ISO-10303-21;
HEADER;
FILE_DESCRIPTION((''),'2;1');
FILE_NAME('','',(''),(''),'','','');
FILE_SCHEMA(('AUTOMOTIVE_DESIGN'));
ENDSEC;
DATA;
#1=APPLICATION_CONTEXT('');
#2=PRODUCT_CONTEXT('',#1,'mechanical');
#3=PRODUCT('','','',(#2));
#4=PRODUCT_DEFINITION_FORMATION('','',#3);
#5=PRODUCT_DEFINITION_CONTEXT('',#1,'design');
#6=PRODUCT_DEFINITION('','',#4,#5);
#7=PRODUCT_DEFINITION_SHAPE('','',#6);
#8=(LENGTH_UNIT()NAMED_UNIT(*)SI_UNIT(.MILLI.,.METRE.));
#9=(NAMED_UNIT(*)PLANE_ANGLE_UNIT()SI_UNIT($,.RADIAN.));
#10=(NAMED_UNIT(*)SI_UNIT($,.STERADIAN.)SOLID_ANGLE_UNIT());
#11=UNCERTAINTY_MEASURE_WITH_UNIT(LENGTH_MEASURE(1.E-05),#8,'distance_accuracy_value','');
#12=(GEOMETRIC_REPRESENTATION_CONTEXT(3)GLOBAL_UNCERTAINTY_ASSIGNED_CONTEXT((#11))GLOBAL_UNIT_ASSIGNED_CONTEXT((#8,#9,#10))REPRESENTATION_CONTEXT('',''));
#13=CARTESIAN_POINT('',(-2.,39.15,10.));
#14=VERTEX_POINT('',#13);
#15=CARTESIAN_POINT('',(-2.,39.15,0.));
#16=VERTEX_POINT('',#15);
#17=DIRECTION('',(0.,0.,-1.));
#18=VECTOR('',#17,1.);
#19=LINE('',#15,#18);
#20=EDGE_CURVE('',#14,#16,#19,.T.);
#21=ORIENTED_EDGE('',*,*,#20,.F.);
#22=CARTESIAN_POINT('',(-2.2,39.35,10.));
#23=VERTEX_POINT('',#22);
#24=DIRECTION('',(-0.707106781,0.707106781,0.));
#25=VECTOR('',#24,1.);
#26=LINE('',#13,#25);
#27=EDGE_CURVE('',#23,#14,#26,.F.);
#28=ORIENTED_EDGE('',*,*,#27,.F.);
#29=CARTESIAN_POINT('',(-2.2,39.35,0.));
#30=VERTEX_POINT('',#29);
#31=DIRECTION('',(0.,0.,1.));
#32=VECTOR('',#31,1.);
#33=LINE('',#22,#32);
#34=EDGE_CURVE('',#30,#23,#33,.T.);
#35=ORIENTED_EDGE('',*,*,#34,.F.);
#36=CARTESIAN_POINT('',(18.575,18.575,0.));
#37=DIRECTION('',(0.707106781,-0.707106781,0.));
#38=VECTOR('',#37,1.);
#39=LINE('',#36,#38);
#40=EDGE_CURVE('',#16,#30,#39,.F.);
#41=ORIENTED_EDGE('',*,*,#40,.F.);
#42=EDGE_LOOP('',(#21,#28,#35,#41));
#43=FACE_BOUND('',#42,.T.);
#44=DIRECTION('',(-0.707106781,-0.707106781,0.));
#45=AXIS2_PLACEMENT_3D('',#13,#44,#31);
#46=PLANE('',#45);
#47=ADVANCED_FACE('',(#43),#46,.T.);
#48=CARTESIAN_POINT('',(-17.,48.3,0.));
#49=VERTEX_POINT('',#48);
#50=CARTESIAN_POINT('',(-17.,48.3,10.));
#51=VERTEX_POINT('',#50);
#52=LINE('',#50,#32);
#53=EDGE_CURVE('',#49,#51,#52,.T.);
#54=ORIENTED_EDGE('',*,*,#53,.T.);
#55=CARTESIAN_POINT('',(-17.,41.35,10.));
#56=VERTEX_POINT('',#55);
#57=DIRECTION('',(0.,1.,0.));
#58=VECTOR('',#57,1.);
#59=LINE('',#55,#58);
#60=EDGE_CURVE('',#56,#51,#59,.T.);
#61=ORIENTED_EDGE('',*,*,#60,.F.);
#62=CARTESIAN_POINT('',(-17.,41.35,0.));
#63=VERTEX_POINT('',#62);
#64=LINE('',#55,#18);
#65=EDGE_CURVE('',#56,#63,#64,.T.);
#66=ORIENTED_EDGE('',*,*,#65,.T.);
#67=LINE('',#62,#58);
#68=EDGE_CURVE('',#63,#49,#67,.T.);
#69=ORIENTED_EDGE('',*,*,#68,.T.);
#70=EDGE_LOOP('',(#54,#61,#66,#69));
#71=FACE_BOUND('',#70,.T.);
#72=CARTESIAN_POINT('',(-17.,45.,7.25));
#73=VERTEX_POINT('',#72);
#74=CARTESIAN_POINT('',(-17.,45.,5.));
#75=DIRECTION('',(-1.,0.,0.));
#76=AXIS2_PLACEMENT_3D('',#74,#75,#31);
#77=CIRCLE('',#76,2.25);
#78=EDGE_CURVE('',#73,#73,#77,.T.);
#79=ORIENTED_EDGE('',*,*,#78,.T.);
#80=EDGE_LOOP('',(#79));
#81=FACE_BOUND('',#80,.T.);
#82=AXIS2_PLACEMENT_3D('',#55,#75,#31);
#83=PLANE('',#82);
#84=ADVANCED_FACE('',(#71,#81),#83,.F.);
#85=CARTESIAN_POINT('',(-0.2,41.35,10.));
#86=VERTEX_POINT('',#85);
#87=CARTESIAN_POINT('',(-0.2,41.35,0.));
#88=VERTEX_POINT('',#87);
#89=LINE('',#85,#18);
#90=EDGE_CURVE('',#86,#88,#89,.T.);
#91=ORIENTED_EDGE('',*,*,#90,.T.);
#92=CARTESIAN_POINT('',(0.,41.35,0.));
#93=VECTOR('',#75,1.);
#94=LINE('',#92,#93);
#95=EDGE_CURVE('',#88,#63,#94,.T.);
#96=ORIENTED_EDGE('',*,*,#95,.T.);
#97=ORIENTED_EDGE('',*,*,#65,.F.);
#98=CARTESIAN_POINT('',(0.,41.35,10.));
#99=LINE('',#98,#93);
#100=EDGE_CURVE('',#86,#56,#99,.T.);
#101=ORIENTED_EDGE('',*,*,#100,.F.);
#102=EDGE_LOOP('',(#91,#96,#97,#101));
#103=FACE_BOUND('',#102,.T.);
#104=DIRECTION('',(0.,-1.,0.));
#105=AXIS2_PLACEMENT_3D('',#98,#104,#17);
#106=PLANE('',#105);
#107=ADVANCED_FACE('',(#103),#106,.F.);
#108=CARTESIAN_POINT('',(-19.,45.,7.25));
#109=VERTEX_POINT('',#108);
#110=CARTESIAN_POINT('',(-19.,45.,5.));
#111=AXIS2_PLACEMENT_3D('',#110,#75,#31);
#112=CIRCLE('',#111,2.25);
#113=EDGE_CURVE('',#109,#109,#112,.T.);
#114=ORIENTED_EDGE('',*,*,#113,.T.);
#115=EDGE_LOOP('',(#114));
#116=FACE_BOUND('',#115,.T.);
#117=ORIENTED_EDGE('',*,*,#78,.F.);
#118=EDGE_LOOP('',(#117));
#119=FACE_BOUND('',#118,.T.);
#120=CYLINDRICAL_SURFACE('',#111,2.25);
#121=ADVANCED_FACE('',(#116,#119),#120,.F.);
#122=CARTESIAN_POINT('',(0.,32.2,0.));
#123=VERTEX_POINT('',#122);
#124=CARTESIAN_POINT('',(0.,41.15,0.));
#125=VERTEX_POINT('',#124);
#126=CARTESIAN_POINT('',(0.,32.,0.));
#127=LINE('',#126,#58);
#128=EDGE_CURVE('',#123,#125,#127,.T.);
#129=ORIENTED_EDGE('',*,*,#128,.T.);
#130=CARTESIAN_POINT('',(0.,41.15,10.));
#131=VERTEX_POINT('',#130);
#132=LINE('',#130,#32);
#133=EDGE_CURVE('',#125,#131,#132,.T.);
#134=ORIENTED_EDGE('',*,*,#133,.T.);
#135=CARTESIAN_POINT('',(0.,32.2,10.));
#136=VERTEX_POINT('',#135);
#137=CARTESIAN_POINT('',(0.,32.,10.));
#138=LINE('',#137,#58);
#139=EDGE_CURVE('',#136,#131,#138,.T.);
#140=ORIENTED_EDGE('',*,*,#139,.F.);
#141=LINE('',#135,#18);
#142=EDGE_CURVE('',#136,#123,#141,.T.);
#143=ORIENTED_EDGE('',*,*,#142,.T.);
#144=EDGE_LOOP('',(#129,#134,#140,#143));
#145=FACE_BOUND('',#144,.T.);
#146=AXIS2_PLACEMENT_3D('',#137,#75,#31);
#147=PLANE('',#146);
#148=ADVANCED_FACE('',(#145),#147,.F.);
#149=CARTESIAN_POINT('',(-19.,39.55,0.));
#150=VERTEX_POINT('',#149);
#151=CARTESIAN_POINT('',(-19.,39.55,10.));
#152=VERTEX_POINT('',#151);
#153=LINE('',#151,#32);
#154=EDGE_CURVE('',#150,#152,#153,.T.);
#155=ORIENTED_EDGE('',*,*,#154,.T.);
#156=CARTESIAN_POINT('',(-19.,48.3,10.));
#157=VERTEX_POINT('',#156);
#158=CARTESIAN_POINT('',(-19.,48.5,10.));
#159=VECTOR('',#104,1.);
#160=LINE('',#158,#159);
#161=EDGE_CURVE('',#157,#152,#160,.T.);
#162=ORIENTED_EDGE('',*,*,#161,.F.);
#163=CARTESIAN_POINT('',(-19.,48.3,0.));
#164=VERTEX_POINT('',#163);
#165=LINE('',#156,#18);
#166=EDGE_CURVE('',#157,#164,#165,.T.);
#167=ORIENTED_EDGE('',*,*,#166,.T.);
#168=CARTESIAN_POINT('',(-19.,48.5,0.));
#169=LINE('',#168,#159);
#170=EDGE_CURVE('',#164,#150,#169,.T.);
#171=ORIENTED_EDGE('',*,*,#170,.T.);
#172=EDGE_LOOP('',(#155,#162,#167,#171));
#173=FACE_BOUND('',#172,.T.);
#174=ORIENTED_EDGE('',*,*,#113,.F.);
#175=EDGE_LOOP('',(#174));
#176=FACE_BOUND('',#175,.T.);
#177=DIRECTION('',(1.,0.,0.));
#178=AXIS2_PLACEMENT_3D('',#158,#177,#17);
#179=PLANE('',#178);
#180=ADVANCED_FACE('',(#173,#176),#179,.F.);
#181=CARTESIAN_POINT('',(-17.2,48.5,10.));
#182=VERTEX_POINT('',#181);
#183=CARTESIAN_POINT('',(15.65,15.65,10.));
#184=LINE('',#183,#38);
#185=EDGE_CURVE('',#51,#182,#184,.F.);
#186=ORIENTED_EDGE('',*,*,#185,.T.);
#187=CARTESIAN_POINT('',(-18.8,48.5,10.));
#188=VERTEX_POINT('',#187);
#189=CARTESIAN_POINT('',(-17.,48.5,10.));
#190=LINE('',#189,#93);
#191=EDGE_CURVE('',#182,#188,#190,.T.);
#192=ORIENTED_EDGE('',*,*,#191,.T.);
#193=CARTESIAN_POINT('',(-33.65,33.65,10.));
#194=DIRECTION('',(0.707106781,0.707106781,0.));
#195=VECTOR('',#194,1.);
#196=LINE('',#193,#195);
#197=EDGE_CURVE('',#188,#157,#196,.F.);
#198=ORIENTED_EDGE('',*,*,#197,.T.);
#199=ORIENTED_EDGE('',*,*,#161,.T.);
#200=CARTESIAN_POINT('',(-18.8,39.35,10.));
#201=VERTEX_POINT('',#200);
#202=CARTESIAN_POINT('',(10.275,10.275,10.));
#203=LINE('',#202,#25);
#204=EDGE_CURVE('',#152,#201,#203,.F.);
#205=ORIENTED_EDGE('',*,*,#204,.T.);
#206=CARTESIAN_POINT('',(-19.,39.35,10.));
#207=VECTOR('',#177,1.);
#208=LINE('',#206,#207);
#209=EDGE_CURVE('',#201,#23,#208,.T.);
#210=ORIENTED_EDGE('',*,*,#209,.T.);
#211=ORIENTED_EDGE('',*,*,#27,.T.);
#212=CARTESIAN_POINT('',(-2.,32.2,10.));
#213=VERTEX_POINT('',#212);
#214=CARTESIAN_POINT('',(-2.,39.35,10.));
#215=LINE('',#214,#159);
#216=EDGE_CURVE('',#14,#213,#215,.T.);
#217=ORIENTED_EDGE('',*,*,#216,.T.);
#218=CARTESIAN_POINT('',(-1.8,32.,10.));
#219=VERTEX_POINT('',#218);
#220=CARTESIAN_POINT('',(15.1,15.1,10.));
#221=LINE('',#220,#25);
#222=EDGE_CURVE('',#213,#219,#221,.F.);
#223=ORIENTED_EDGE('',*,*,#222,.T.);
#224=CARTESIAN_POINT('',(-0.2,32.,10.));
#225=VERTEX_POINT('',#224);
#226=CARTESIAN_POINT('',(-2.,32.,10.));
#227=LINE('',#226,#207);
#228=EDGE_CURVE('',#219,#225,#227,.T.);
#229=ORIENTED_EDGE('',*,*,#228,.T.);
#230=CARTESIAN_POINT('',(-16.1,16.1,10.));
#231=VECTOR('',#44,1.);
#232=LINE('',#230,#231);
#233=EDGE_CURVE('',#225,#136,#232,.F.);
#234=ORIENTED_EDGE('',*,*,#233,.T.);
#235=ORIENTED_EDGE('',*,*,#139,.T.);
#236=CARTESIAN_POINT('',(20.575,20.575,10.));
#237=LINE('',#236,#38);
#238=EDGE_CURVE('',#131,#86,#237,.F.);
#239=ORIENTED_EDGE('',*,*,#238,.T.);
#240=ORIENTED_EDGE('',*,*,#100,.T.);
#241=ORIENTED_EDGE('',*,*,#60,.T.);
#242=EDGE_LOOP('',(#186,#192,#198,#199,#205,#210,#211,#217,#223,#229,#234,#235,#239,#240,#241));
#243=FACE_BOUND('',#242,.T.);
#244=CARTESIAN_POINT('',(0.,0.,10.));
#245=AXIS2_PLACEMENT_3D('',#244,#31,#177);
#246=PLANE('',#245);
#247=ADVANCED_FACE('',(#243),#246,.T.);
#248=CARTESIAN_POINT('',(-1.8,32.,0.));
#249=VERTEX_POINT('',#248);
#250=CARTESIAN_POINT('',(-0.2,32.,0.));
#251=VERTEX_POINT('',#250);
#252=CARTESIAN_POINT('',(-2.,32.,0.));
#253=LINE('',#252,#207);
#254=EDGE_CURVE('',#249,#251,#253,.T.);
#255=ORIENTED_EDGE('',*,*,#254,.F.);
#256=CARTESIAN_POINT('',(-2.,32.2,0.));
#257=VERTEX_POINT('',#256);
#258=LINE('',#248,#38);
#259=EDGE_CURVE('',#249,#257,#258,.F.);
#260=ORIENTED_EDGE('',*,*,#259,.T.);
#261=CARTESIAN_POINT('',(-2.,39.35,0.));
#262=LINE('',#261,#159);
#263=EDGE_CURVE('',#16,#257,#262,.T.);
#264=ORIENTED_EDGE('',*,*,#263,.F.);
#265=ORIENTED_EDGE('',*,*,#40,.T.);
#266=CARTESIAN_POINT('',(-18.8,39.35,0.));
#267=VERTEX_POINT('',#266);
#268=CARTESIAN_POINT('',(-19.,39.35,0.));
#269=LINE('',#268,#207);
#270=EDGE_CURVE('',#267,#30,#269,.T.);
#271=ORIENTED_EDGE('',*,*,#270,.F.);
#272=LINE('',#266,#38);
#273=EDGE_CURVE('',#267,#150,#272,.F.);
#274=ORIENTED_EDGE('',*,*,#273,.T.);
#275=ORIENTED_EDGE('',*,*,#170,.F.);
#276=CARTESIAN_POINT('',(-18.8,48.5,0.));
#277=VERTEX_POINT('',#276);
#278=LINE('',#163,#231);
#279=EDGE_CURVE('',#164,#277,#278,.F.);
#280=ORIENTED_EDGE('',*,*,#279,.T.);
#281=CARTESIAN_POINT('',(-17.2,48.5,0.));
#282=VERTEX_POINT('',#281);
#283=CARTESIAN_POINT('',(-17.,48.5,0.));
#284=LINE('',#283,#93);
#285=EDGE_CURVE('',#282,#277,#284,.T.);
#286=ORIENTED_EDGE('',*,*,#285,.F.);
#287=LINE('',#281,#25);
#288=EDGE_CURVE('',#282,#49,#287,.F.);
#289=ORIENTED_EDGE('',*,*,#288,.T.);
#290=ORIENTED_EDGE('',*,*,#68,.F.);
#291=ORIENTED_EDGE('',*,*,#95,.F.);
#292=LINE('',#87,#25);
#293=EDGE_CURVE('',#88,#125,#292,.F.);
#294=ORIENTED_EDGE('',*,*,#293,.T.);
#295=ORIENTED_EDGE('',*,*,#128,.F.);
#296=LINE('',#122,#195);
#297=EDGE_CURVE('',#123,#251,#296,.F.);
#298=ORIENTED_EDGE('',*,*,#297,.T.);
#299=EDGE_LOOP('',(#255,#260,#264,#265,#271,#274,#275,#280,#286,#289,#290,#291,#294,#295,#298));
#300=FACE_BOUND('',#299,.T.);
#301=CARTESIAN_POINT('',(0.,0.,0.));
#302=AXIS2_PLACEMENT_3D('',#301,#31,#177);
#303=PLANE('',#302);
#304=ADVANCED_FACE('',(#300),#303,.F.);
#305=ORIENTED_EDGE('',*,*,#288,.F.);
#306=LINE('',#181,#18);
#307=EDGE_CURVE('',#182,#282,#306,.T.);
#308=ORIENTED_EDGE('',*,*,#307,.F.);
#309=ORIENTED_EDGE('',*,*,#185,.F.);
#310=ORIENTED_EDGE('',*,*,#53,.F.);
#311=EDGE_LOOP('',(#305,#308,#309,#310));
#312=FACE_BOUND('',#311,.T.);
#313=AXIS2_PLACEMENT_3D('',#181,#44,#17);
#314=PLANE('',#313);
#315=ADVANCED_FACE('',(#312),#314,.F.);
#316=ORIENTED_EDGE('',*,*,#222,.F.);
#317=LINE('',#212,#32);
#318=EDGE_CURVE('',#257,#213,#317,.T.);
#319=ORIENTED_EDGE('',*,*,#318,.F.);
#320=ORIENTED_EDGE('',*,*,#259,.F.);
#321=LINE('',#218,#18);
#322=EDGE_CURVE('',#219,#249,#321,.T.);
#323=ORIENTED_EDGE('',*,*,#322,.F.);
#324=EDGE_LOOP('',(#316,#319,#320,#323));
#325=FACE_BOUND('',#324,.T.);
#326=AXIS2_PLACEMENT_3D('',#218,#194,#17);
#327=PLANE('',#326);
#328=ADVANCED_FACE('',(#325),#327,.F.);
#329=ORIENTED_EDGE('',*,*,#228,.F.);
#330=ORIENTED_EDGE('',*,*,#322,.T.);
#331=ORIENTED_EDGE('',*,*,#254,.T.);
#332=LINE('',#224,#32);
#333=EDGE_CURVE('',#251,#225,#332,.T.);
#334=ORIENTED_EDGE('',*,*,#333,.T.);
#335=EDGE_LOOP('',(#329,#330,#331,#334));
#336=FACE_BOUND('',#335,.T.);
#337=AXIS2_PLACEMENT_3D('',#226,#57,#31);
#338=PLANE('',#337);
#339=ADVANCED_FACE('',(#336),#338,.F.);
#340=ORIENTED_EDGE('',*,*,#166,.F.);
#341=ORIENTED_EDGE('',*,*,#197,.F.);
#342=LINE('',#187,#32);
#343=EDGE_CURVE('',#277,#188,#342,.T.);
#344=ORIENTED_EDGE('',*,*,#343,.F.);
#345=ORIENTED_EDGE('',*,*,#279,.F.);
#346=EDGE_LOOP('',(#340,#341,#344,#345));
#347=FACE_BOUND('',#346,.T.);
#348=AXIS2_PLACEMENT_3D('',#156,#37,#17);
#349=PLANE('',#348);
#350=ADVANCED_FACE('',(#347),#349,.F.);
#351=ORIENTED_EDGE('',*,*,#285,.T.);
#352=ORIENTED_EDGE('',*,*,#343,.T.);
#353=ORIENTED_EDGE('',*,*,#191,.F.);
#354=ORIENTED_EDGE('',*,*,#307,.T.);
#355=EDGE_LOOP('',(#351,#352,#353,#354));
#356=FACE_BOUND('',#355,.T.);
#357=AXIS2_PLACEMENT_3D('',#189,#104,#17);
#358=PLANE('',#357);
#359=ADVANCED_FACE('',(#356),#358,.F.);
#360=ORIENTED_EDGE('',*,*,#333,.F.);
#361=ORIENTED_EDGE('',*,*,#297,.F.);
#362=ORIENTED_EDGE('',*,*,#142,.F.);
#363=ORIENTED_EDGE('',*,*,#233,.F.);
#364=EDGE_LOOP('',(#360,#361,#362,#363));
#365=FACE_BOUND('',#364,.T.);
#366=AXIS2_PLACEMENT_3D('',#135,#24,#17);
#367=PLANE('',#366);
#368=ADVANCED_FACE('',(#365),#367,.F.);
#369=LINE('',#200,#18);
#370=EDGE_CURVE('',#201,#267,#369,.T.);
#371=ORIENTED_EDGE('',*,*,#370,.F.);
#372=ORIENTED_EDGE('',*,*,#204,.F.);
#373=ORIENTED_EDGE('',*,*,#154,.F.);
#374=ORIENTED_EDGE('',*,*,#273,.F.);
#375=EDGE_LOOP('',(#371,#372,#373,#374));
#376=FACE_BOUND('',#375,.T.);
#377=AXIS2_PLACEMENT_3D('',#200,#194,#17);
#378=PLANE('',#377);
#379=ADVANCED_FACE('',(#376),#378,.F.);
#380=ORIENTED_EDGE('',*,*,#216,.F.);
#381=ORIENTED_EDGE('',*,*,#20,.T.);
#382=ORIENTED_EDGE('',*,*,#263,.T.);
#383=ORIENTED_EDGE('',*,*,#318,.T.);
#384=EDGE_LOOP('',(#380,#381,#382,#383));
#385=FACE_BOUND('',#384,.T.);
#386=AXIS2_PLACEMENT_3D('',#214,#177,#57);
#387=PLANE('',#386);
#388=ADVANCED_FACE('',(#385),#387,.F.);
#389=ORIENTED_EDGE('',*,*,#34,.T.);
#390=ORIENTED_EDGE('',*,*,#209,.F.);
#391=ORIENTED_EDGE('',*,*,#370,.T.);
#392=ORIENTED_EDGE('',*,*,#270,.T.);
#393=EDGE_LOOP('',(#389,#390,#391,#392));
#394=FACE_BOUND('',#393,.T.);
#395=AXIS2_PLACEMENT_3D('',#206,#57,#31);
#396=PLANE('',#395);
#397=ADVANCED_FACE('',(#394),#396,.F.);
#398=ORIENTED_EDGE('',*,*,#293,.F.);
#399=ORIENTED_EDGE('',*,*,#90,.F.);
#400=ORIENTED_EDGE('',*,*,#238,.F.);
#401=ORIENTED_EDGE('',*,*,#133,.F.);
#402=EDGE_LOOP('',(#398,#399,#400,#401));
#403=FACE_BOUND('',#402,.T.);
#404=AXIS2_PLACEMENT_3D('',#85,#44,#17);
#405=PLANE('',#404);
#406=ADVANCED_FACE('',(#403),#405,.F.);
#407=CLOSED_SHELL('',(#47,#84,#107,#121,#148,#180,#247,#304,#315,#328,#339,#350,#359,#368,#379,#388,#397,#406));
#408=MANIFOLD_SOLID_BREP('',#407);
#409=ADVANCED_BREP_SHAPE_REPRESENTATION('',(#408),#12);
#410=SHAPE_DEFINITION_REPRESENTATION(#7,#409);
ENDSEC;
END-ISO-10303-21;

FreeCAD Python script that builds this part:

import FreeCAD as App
import Part
import Sketcher


def edges_at(feature, points):
    """Names of the edges that pass closest to the given points."""
    edges = feature.Shape.Edges
    near = lambda p: min(range(len(edges)), key=lambda i: edges[i].distToShape(Part.Vertex(*p))[0])
    return sorted({f"Edge{near(p) + 1}" for p in points})

doc = App.newDocument("Part")
params = doc.addObject("Spreadsheet::Sheet", "Params")
for row, (alias, value) in enumerate([
    ("sketch1_width", "17 mm"),
    ("sketch1_width2", "2 mm"),
    ("sketch1_height", "9.35 mm"),
    ("sketch1_height2", "7.15 mm"),
    ("pad1_length", "10 mm"),
    ("chamfer_size", "0.2 mm"),
    ("sketch2_diameter", "4.5 mm"),
    ("hole_diameter", "4.5 mm"),
], start=1):
    params.set(f"A{row}", alias)
    params.set(f"B{row}", "=" + value)
    params.setAlias(f"B{row}", alias)

body = doc.addObject("PartDesign::Body", "Body")

# Sketch on XY plane
sketch1 = body.newObject("Sketcher::SketchObject", "Sketch")
sketch1.AttachmentSupport = (doc.getObject("XY_Plane"), [""])
sketch1.MapMode = "FlatFace"
sketch1.addGeometry([
    Part.LineSegment(App.Vector(0, 32, 0), App.Vector(0, 41.35, 0)),  # 0
    Part.LineSegment(App.Vector(0, 41.35, 0), App.Vector(-17, 41.35, 0)),  # 1
    Part.LineSegment(App.Vector(-17, 41.35, 0), App.Vector(-17, 48.5, 0)),  # 2
    Part.LineSegment(App.Vector(-17, 48.5, 0), App.Vector(-19, 48.5, 0)),  # 3
    Part.LineSegment(App.Vector(-19, 48.5, 0), App.Vector(-19, 39.35, 0)),  # 4
    Part.LineSegment(App.Vector(-19, 39.35, 0), App.Vector(-2, 39.35, 0)),  # 5
    Part.LineSegment(App.Vector(-2, 39.35, 0), App.Vector(-2, 32, 0)),  # 6
    Part.LineSegment(App.Vector(-2, 32, 0), App.Vector(0, 32, 0)),  # 7
], False)
sketch1.addConstraint([
    Sketcher.Constraint("Coincident", 0, 2, 1, 1),
    Sketcher.Constraint("Coincident", 1, 2, 2, 1),
    Sketcher.Constraint("Coincident", 2, 2, 3, 1),
    Sketcher.Constraint("Coincident", 3, 2, 4, 1),
    Sketcher.Constraint("Coincident", 4, 2, 5, 1),
    Sketcher.Constraint("Coincident", 5, 2, 6, 1),
    Sketcher.Constraint("Coincident", 6, 2, 7, 1),
    Sketcher.Constraint("Coincident", 7, 2, 0, 1),
    Sketcher.Constraint("Vertical", 0),
    Sketcher.Constraint("Horizontal", 1),
    Sketcher.Constraint("Vertical", 2),
    Sketcher.Constraint("Horizontal", 3),
    Sketcher.Constraint("Vertical", 4),
    Sketcher.Constraint("Horizontal", 5),
    Sketcher.Constraint("Vertical", 6),
    Sketcher.Constraint("Horizontal", 7),
    Sketcher.Constraint("PointOnObject", 0, 2, -2),
    Sketcher.Constraint("Equal", 1, 5),
    Sketcher.Constraint("DistanceX", 1, 2, 1, 1, 17.0),
    Sketcher.Constraint("DistanceX", 3, 2, 3, 1, 2.0),
    Sketcher.Constraint("DistanceY", -1, 1, 6, 2, 32.0),
    Sketcher.Constraint("DistanceY", 4, 2, 1, 2, 2.0),
    Sketcher.Constraint("DistanceY", 0, 1, 0, 2, 9.35),
    Sketcher.Constraint("DistanceY", 2, 1, 2, 2, 7.15),
])
sketch1.setExpression("Constraints[18]", "Params.sketch1_width")
sketch1.setExpression("Constraints[19]", "Params.sketch1_width2")
sketch1.setExpression("Constraints[22]", "Params.sketch1_height")
sketch1.setExpression("Constraints[23]", "Params.sketch1_height2")
pad1 = body.newObject("PartDesign::Pad", "Pad")
pad1.Profile = sketch1
pad1.setExpression("Length", "Params.pad1_length")
doc.recompute()

chamfer = body.newObject("PartDesign::Chamfer", "Chamfer")
chamfer.Base = (pad1, edges_at(pad1, [
    (0, 41.35, 5),
    (0, 32, 5),
    (-2, 32, 5),
    (-2, 39.35, 5),
    (-19, 39.35, 5),
    (-19, 48.5, 5),
    (-17, 48.5, 5),
]))
chamfer.setExpression("Size", "Params.chamfer_size")

# Sketch on YZ plane
sketch2 = body.newObject("Sketcher::SketchObject", "Sketch001")
sketch2.AttachmentSupport = (doc.getObject("YZ_Plane"), [""])
sketch2.MapMode = "FlatFace"
sketch2.AttachmentOffset = App.Placement(App.Vector(0, 0, -19), App.Rotation())
sketch2.addGeometry(Part.Circle(App.Vector(45, 5, 0), App.Vector(0, 0, 1), 2.25), False)
sketch2.addConstraint([
    Sketcher.Constraint("Diameter", 0, 4.5),
    Sketcher.Constraint("DistanceX", -1, 1, 0, 3, 45.0),
    Sketcher.Constraint("DistanceY", -1, 1, 0, 3, 5.0),
])
sketch2.setExpression("Constraints[0]", "Params.sketch2_diameter")
doc.recompute()
hole = body.newObject("PartDesign::Hole", "Hole")
hole.Profile = sketch2
hole.ThreadType = "None"
hole.setExpression("Diameter", "Params.hole_diameter")
hole.DepthType = "ThroughAll"
hole.Reversed = True

doc.recompute()
